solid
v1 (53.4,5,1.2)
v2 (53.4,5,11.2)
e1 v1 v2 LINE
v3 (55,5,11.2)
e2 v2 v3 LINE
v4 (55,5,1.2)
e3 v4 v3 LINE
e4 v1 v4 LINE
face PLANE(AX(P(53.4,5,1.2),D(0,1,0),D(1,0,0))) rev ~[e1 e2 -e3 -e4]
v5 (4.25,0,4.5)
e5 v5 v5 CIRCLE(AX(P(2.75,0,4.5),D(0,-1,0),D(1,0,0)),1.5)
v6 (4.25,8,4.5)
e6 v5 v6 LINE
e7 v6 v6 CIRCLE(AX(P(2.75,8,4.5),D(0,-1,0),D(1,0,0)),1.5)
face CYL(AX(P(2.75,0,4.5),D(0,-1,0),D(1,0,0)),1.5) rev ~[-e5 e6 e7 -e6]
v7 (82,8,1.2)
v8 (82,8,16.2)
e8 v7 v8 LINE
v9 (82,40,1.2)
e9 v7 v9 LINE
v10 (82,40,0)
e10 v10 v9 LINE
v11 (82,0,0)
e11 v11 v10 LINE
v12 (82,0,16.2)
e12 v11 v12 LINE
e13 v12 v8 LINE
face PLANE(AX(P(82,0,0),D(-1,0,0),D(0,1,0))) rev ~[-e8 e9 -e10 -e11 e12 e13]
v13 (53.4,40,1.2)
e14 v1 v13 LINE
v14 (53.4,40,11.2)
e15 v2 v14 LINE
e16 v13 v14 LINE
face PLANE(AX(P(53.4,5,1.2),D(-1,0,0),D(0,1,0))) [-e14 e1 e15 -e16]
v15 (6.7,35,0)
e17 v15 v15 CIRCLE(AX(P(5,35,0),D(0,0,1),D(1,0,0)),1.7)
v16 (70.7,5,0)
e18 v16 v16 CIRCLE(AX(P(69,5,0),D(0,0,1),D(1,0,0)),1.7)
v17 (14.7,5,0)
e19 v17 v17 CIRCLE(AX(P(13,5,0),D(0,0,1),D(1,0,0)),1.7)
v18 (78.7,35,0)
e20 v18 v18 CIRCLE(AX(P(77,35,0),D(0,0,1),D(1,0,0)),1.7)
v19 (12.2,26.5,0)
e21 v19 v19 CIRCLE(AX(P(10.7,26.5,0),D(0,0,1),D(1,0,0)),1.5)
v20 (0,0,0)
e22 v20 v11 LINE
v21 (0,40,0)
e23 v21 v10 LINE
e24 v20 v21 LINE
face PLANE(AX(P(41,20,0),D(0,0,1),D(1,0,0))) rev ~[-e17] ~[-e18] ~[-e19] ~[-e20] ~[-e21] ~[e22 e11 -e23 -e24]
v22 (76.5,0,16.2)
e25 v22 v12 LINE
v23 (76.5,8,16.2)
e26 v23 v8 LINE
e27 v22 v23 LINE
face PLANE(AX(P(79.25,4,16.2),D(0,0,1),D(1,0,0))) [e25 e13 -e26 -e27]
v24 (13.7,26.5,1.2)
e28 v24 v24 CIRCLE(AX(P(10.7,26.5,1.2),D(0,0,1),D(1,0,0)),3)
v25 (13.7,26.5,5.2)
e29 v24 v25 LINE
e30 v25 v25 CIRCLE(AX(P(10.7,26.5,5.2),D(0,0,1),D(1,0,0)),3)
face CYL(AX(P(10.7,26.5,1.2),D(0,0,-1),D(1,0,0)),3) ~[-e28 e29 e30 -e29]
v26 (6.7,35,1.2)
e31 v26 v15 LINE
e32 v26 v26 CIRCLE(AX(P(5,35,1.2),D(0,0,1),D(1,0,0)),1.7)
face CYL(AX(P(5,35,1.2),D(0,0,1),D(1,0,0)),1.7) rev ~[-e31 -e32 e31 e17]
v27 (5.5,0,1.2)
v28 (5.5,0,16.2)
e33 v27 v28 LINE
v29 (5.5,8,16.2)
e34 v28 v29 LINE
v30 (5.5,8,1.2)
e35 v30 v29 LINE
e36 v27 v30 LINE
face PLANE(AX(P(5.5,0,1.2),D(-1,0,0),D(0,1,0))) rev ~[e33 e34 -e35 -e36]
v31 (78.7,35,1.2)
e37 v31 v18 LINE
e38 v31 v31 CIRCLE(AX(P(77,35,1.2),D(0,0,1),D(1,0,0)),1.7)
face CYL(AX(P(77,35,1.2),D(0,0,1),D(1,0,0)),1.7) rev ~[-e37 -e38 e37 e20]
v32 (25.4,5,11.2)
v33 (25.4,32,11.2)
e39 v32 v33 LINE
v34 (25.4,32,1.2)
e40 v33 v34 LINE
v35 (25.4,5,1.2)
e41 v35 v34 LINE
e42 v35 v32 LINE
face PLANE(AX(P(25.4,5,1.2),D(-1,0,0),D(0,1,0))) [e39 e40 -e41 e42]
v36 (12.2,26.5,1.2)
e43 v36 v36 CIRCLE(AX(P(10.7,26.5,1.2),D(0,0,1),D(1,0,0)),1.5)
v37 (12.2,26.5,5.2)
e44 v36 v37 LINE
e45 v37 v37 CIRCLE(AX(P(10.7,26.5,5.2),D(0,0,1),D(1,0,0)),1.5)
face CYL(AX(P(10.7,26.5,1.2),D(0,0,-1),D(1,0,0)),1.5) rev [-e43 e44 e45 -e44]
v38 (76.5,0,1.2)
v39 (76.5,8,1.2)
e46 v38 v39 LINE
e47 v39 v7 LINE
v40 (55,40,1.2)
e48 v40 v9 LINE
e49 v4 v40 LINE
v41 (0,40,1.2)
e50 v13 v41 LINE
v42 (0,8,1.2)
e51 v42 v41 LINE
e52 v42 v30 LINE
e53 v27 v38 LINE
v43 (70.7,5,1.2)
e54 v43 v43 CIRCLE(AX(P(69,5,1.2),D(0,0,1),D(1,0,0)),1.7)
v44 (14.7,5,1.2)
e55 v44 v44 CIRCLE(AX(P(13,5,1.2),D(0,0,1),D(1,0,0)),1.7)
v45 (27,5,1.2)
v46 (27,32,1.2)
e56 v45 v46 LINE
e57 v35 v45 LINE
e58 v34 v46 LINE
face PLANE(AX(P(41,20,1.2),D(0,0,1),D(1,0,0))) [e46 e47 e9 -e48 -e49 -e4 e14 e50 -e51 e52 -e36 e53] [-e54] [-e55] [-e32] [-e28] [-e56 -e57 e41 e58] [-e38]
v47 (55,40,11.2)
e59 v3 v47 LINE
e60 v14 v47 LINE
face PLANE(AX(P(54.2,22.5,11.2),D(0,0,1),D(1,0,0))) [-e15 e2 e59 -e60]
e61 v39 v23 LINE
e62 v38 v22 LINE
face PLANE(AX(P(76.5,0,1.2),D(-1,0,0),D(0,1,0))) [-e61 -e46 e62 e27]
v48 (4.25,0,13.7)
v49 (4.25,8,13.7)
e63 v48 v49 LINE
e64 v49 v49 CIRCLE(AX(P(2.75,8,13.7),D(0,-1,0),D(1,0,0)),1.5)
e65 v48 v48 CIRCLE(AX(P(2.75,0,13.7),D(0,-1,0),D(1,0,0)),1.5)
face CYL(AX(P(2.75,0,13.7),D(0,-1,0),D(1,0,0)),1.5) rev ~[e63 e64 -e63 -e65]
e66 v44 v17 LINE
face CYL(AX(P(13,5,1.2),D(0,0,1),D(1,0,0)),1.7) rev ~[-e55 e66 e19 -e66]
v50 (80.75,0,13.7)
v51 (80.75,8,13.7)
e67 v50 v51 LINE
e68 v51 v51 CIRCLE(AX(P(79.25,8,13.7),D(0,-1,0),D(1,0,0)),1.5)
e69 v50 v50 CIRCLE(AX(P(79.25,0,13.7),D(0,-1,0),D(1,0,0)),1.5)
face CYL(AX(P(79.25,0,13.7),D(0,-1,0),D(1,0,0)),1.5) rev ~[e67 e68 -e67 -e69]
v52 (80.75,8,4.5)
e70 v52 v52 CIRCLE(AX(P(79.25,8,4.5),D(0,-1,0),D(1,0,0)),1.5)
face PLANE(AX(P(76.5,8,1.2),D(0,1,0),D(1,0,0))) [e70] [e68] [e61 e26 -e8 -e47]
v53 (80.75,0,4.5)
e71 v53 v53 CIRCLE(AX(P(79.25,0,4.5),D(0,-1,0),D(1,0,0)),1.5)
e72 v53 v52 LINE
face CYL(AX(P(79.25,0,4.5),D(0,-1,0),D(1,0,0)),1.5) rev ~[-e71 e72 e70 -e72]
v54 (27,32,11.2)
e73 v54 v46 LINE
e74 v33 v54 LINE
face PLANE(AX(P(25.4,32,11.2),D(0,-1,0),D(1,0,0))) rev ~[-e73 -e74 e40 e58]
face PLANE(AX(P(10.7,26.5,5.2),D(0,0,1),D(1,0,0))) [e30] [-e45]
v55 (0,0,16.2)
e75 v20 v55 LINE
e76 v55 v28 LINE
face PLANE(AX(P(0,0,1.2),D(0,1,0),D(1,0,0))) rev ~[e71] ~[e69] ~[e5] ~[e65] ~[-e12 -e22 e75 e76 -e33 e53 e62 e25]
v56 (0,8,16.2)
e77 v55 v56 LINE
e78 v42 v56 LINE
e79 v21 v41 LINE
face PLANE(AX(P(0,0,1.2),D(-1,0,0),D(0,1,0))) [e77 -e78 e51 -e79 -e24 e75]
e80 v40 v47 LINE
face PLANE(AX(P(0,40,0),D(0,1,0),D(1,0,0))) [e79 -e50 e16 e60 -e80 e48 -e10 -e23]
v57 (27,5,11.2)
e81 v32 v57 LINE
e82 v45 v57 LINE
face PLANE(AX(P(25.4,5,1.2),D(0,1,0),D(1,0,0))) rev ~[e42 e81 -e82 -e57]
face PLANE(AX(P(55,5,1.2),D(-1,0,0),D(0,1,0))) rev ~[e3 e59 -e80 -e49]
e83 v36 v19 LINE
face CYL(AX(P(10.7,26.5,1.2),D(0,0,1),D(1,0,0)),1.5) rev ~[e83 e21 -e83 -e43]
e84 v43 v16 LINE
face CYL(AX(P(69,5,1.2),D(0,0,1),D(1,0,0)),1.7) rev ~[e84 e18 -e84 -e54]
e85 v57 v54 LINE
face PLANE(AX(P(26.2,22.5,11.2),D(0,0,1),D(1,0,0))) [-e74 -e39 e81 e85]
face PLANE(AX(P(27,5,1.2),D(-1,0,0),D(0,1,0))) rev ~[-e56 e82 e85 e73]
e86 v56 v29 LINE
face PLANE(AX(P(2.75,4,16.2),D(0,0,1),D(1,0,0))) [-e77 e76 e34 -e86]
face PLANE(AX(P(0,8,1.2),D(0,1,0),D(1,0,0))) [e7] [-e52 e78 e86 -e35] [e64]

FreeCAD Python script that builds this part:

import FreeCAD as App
import Part
import Sketcher
from FreeCAD import Vector


def add_polygon(sketch, points):
    """Adds a closed chain of lines whose ends are joined by coincident constraints."""
    first, n = sketch.GeometryCount, len(points)
    for a, b in zip(points, points[1:] + points[:1]):
        sketch.addGeometry(Part.LineSegment(App.Vector(*a, 0), App.Vector(*b, 0)), False)
    for i in range(n):
        sketch.addConstraint(Sketcher.Constraint("Coincident", first + i, 2, first + (i + 1) % n, 1))

doc = App.newDocument("Part")
params = doc.addObject("Spreadsheet::Sheet", "Params")
for row, (alias, value) in enumerate([
    ("sketch1_width", "82 mm"),
    ("sketch1_height", "40 mm"),
    ("pad1_length", "1.2 mm"),
    ("sketch2_height", "8 mm"),
    ("sketch2_width", "5.5 mm"),
    ("pad2_length", "15 mm"),
    ("sketch3_diameter", "3 mm"),
    ("sketch4_height", "35 mm"),
    ("sketch4_width", "1.6 mm"),
    ("pad3_length", "10 mm"),
    ("sketch5_diameter", "6 mm"),
    ("sketch5_diameter2", "3 mm"),
    ("pad4_length", "4 mm"),
    ("sketch6_diameter", "3.4 mm"),
    ("sketch7_diameter", "3 mm"),
    ("sketch8_height", "8 mm"),
    ("sketch8_width", "1.6 mm"),
    ("pocket4_length", "10 mm"),
], start=1):
    params.set(f"A{row}", alias)
    params.set(f"B{row}", "=" + value)
    params.setAlias(f"B{row}", alias)

body = doc.addObject("PartDesign::Body", "Body")

# Sketch on XY plane
sketch1 = body.newObject("Sketcher::SketchObject", "Sketch")
sketch1.AttachmentSupport = (doc.getObject("XY_Plane"), [""])
sketch1.MapMode = "FlatFace"
add_polygon(sketch1, [(0, 40), (0, 0), (82, 0), (82, 40)])  # lines 0-3
sketch1.addConstraint([
    Sketcher.Constraint("Vertical", 0),
    Sketcher.Constraint("Horizontal", 1),
    Sketcher.Constraint("Vertical", 2),
    Sketcher.Constraint("Horizontal", 3),
    Sketcher.Constraint("Coincident", 0, 2, -1, 1),
    Sketcher.Constraint("DistanceX", 1, 1, 1, 2, 82.0),
    Sketcher.Constraint("DistanceY", 0, 2, 0, 1, 40.0),
])
sketch1.setExpression("Constraints[9]", "Params.sketch1_width")
sketch1.setExpression("Constraints[10]", "Params.sketch1_height")
pad1 = body.newObject("PartDesign::Pad", "Pad")
pad1.Profile = sketch1
pad1.setExpression("Length", "Params.pad1_length")

# Sketch on XY plane
sketch2 = body.newObject("Sketcher::SketchObject", "Sketch001")
sketch2.AttachmentSupport = (doc.getObject("XY_Plane"), [""])
sketch2.MapMode = "FlatFace"
sketch2.AttachmentOffset = App.Placement(Vector(0, 0, 1.2), App.Rotation())
add_polygon(sketch2, [(0, 8), (0, 0), (5.5, 0), (5.5, 8)])  # lines 0-3
add_polygon(sketch2, [(76.5, 8), (76.5, 0), (82, 0), (82, 8)])  # lines 4-7
sketch2.addConstraint([
    Sketcher.Constraint("Vertical", 0),
    Sketcher.Constraint("Horizontal", 1),
    Sketcher.Constraint("Vertical", 2),
    Sketcher.Constraint("Horizontal", 3),
    Sketcher.Constraint("Vertical", 4),
    Sketcher.Constraint("Horizontal", 5),
    Sketcher.Constraint("Vertical", 6),
    Sketcher.Constraint("Horizontal", 7),
    Sketcher.Constraint("Coincident", 0, 2, -1, 1),
    Sketcher.Constraint("PointOnObject", 4, 2, -1),
    Sketcher.Constraint("Horizontal", 3, 2, 6, 2),
    Sketcher.Constraint("Equal", 3, 5),
    Sketcher.Constraint("DistanceY", 0, 2, 0, 1, 8.0),
    Sketcher.Constraint("DistanceX", 1, 1, 1, 2, 5.5),
    Sketcher.Constraint("DistanceX", -1, 1, 5, 2, 82.0),
])
sketch2.setExpression("Constraints[20]", "Params.sketch2_height")
sketch2.setExpression("Constraints[21]", "Params.sketch2_width")
pad2 = body.newObject("PartDesign::Pad", "Pad001")
pad2.Profile = sketch2
pad2.setExpression("Length", "Params.pad2_length")

# Sketch on XZ plane
sketch3 = body.newObject("Sketcher::SketchObject", "Sketch002")
sketch3.AttachmentSupport = (doc.getObject("XZ_Plane"), [""])
sketch3.MapMode = "FlatFace"
sketch3.addGeometry([
    Part.Circle(Vector(2.75, 13.7, 0), Vector(0, 0, 1), 1.5),
    Part.Circle(Vector(2.75, 4.5, 0), Vector(0, 0, 1), 1.5),
    Part.Circle(Vector(79.25, 13.7, 0), Vector(0, 0, 1), 1.5),
    Part.Circle(Vector(79.25, 4.5, 0), Vector(0, 0, 1), 1.5),
], False)
sketch3.addConstraint([
    Sketcher.Constraint("Equal", 0, 1),
    Sketcher.Constraint("Equal", 1, 2),
    Sketcher.Constraint("Equal", 2, 3),
    Sketcher.Constraint("Horizontal", 0, 3, 2, 3),
    Sketcher.Constraint("Horizontal", 1, 3, 3, 3),
    Sketcher.Constraint("Vertical", 0, 3, 1, 3),
    Sketcher.Constraint("Vertical", 2, 3, 3, 3),
    Sketcher.Constraint("Diameter", 0, 3.0),
    Sketcher.Constraint("DistanceY", -1, 1, 0, 3, 13.7),
    Sketcher.Constraint("DistanceY", -1, 1, 1, 3, 4.5),
    Sketcher.Constraint("DistanceX", 0, 3, 2, 3, 76.5),
    Sketcher.Constraint("DistanceX", -1, 1, 0, 3, 2.75),
])
sketch3.setExpression("Constraints[7]", "Params.sketch3_diameter")
pocket1 = body.newObject("PartDesign::Pocket", "Pocket")
pocket1.Profile = sketch3
pocket1.Type = "ThroughAll"

# Sketch on XY plane
sketch4 = body.newObject("Sketcher::SketchObject", "Sketch003")
sketch4.AttachmentSupport = (doc.getObject("XY_Plane"), [""])
sketch4.MapMode = "FlatFace"
sketch4.AttachmentOffset = App.Placement(Vector(0, 0, 1.2), App.Rotation())
add_polygon(sketch4, [(25.4, 40), (25.4, 5), (27, 5), (27, 40)])  # lines 0-3
add_polygon(sketch4, [(53.4, 40), (53.4, 5), (55, 5), (55, 40)])  # lines 4-7
sketch4.addConstraint([
    Sketcher.Constraint("Vertical", 0),
    Sketcher.Constraint("Horizontal", 1),
    Sketcher.Constraint("Vertical", 2),
    Sketcher.Constraint("Horizontal", 3),
    Sketcher.Constraint("Vertical", 4),
    Sketcher.Constraint("Horizontal", 5),
    Sketcher.Constraint("Vertical", 6),
    Sketcher.Constraint("Horizontal", 7),
    Sketcher.Constraint("Horizontal", 1, 2, 4, 2),
    Sketcher.Constraint("Horizontal", 3, 2, 6, 2),
    Sketcher.Constraint("Equal", 3, 5),
    Sketcher.Constraint("DistanceY", 0, 2, 0, 1, 35.0),
    Sketcher.Constraint("DistanceX", 1, 1, 1, 2, 1.6),
    Sketcher.Constraint("DistanceY", -1, 1, 0, 2, 5.0),
    Sketcher.Constraint("DistanceX", -1, 1, 1, 2, 27.0),
    Sketcher.Constraint("DistanceX", -1, 1, 5, 2, 55.0),
])
sketch4.setExpression("Constraints[19]", "Params.sketch4_height")
sketch4.setExpression("Constraints[20]", "Params.sketch4_width")
pad3 = body.newObject("PartDesign::Pad", "Pad002")
pad3.Profile = sketch4
pad3.setExpression("Length", "Params.pad3_length")

# Sketch on XY plane
sketch5 = body.newObject("Sketcher::SketchObject", "Sketch004")
sketch5.AttachmentSupport = (doc.getObject("XY_Plane"), [""])
sketch5.MapMode = "FlatFace"
sketch5.AttachmentOffset = App.Placement(Vector(0, 0, 1.2), App.Rotation())
sketch5.addGeometry([
    Part.Circle(Vector(10.7, 26.5, 0), Vector(0, 0, 1), 3),
    Part.Circle(Vector(10.7, 26.5, 0), Vector(0, 0, 1), 1.5),
], False)
sketch5.addConstraint([
    Sketcher.Constraint("Coincident", 1, 3, 0, 3),
    Sketcher.Constraint("Diameter", 0, 6.0),
    Sketcher.Constraint("Diameter", 1, 3.0),
    Sketcher.Constraint("DistanceX", -1, 1, 0, 3, 10.7),
    Sketcher.Constraint("DistanceY", -1, 1, 0, 3, 26.5),
])
sketch5.setExpression("Constraints[1]", "Params.sketch5_diameter")
sketch5.setExpression("Constraints[2]", "Params.sketch5_diameter2")
pad4 = body.newObject("PartDesign::Pad", "Pad003")
pad4.Profile = sketch5
pad4.setExpression("Length", "Params.pad4_length")

# Sketch on XY plane
sketch6 = body.newObject("Sketcher::SketchObject", "Sketch005")
sketch6.AttachmentSupport = (doc.getObject("XY_Plane"), [""])
sketch6.MapMode = "FlatFace"
sketch6.AttachmentOffset = App.Placement(Vector(0, 0, 1.2), App.Rotation())
sketch6.addGeometry([
    Part.Circle(Vector(5, 35, 0), Vector(0, 0, 1), 1.7),
    Part.Circle(Vector(77, 35, 0), Vector(0, 0, 1), 1.7),
    Part.Circle(Vector(69, 5, 0), Vector(0, 0, 1), 1.7),
    Part.Circle(Vector(13, 5, 0), Vector(0, 0, 1), 1.7),
], False)
sketch6.addConstraint([
    Sketcher.Constraint("Equal", 0, 1),
    Sketcher.Constraint("Equal", 1, 2),
    Sketcher.Constraint("Equal", 2, 3),
    Sketcher.Constraint("Horizontal", 0, 3, 1, 3),
    Sketcher.Constraint("Horizontal", 2, 3, 3, 3),
    Sketcher.Constraint("Diameter", 0, 3.4),
    Sketcher.Constraint("DistanceX", -1, 1, 0, 3, 5.0),
    Sketcher.Constraint("DistanceY", -1, 1, 0, 3, 35.0),
    Sketcher.Constraint("DistanceX", -1, 1, 1, 3, 77.0),
    Sketcher.Constraint("DistanceX", -1, 1, 2, 3, 69.0),
    Sketcher.Constraint("DistanceY", -1, 1, 2, 3, 5.0),
    Sketcher.Constraint("DistanceX", -1, 1, 3, 3, 13.0),
])
sketch6.setExpression("Constraints[5]", "Params.sketch6_diameter")
pocket2 = body.newObject("PartDesign::Pocket", "Pocket001")
pocket2.Profile = sketch6
pocket2.Type = "ThroughAll"

# Sketch on XY plane
sketch7 = body.newObject("Sketcher::SketchObject", "Sketch006")
sketch7.AttachmentSupport = (doc.getObject("XY_Plane"), [""])
sketch7.MapMode = "FlatFace"
sketch7.AttachmentOffset = App.Placement(Vector(0, 0, 1.2), App.Rotation())
sketch7.addGeometry(Part.Circle(Vector(10.7, 26.5, 0), Vector(0, 0, 1), 1.5), False)
sketch7.addConstraint([
    Sketcher.Constraint("Diameter", 0, 3.0),
    Sketcher.Constraint("DistanceX", -1, 1, 0, 3, 10.7),
    Sketcher.Constraint("DistanceY", -1, 1, 0, 3, 26.5),
])
sketch7.setExpression("Constraints[0]", "Params.sketch7_diameter")
pocket3 = body.newObject("PartDesign::Pocket", "Pocket002")
pocket3.Profile = sketch7
pocket3.Type = "ThroughAll"

# Sketch on XY plane
sketch8 = body.newObject("Sketcher::SketchObject", "Sketch007")
sketch8.AttachmentSupport = (doc.getObject("XY_Plane"), [""])
sketch8.MapMode = "FlatFace"
sketch8.AttachmentOffset = App.Placement(Vector(0, 0, 11.2), App.Rotation())
add_polygon(sketch8, [(25.4, 40), (25.4, 32), (27, 32), (27, 40)])  # lines 0-3
sketch8.addConstraint([
    Sketcher.Constraint("Vertical", 0),
    Sketcher.Constraint("Horizontal", 1),
    Sketcher.Constraint("Vertical", 2),
    Sketcher.Constraint("Horizontal", 3),
    Sketcher.Constraint("DistanceY", 0, 2, 0, 1, 8.0),
    Sketcher.Constraint("DistanceX", 1, 1, 1, 2, 1.6),
    Sketcher.Constraint("DistanceY", -1, 1, 0, 2, 32.0),
    Sketcher.Constraint("DistanceX", -1, 1, 1, 2, 27.0),
])
sketch8.setExpression("Constraints[8]", "Params.sketch8_height")
sketch8.setExpression("Constraints[9]", "Params.sketch8_width")
pocket4 = body.newObject("PartDesign::Pocket", "Pocket003")
pocket4.Profile = sketch8
pocket4.setExpression("Length", "Params.pocket4_length")

doc.recompute()
